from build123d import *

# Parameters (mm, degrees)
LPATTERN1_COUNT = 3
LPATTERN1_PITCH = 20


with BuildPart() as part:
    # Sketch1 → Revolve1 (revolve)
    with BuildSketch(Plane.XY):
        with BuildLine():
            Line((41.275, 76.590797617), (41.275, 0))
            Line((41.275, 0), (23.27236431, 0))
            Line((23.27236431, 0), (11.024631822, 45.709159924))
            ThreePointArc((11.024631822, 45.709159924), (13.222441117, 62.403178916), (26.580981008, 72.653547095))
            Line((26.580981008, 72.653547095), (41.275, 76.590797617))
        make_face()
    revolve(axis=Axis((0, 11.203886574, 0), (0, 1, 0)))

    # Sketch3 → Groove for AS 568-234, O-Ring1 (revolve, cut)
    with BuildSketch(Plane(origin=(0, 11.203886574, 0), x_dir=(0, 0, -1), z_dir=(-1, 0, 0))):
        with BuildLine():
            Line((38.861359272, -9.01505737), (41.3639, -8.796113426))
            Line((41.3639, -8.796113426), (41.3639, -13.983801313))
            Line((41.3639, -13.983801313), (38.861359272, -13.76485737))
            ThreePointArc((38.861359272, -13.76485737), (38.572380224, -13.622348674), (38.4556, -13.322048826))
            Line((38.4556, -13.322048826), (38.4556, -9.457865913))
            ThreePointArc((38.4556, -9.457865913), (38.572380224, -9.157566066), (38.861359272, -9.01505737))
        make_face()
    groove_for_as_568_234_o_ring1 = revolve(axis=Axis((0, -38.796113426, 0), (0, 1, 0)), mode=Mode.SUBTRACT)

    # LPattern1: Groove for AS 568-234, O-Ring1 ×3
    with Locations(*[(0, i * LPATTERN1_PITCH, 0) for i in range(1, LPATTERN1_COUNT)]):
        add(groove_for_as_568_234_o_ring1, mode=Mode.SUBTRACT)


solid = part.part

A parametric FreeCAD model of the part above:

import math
import FreeCAD as App
import Part
import Sketcher

V = App.Vector
Q = App.Units.Quantity

doc = App.newDocument("Part")
body = doc.addObject("PartDesign::Body", "Body")

# Sketch on XY plane
sketch1 = body.newObject("Sketcher::SketchObject", "Sketch")
sketch1.AttachmentSupport = (doc.getObject("XY_Plane"), [""])
sketch1.MapMode = "FlatFace"
sketch1.addGeometry([
    Part.LineSegment(V(41.275, 0, 0), V(41.275, 76.590798, 0)),  # 0
    Part.LineSegment(V(41.275, 76.590798, 0), V(26.580981, 72.653547, 0)),  # 1
    Part.ArcOfCircle(Part.Circle(V(32.275, 51.403179, 0), V(0, 0, 1), 22), math.radians(105), math.radians(195)),  # 2
    Part.LineSegment(V(11.024632, 45.70916, 0), V(23.272364, 0, 0)),  # 3
    Part.LineSegment(V(23.272364, 0, 0), V(41.275, 0, 0)),  # 4
], False)
sketch1.addConstraint([
    Sketcher.Constraint("Coincident", 0, 2, 1, 1),
    Sketcher.Constraint("Tangent", 1, 2, 2, 1),
    Sketcher.Constraint("Tangent", 2, 2, 3, 1),
    Sketcher.Constraint("Coincident", 3, 2, 4, 1),
    Sketcher.Constraint("Coincident", 4, 2, 0, 1),
    Sketcher.Constraint("Vertical", 0),
    Sketcher.Constraint("Horizontal", 4),
    Sketcher.Constraint("PointOnObject", 3, 2, -1),
    Sketcher.Constraint("Perpendicular", 1, 3),
    Sketcher.Constraint("Radius", 2, 22.0),
    Sketcher.Constraint("Angle", 1, Q("-165 deg")),
    Sketcher.Constraint("DistanceX", 2, 3, 0, 2, 9.0),
    Sketcher.Constraint("DistanceX", -1, 1, 2, 3, 32.275),
    Sketcher.Constraint("DistanceX", 4, 1, 4, 2, 18.002636),
])
revolution = body.newObject("PartDesign::Revolution", "Revolution")
revolution.Profile = sketch1
revolution.ReferenceAxis = (sketch1, ["V_Axis"])
revolution.Angle = 360

# Sketch on YZ plane
sketch2 = body.newObject("Sketcher::SketchObject", "Sketch001")
sketch2.AttachmentSupport = (doc.getObject("YZ_Plane"), [""])
sketch2.MapMode = "FlatFace"
sketch2.addGeometry([
    Part.LineSegment(V(20, -41.3639, 0), V(20.218944, -38.861359, 0)),  # 0
    Part.ArcOfCircle(Part.Circle(V(20.661752, -38.9001, 0), V(0, 0, 1), 0.4445), math.radians(90), math.radians(175)),  # 1
    Part.LineSegment(V(20.661752, -38.4556, 0), V(24.525935, -38.4556, 0)),  # 2
    Part.ArcOfCircle(Part.Circle(V(24.525935, -38.9001, 0), V(0, 0, 1), 0.4445), math.radians(5), math.radians(90)),  # 3
    Part.LineSegment(V(24.968744, -38.861359, 0), V(25.187688, -41.3639, 0)),  # 4
    Part.LineSegment(V(25.187688, -41.3639, 0), V(20, -41.3639, 0)),  # 5
], False)
sketch2.addConstraint([
    Sketcher.Constraint("Tangent", 0, 2, 1, 2),
    Sketcher.Constraint("Tangent", 1, 1, 2, 1),
    Sketcher.Constraint("Tangent", 2, 2, 3, 2),
    Sketcher.Constraint("Tangent", 3, 1, 4, 1),
    Sketcher.Constraint("Coincident", 4, 2, 5, 1),
    Sketcher.Constraint("Coincident", 5, 2, 0, 1),
    Sketcher.Constraint("Horizontal", 2),
    Sketcher.Constraint("Horizontal", 5),
    Sketcher.Constraint("Equal", 1, 3),
    Sketcher.Constraint("Horizontal", 0, 2, 3, 1),
    Sketcher.Constraint("Angle", 0, Q("85 deg")),
    Sketcher.Constraint("DistanceX", -1, 1, 5, 2, 20.0),
    Sketcher.Constraint("Radius", 1, 0.4445),
    Sketcher.Constraint("Distance", 0, 2.5121),
    Sketcher.Constraint("DistanceY", 1, 3, -1, 1, 38.9001),
    Sketcher.Constraint("DistanceX", 0, 2, 3, 1, 4.7498),
])
groove = body.newObject("PartDesign::Groove", "Groove")
groove.Profile = sketch2
groove.ReferenceAxis = (sketch2, ["H_Axis"])
groove.Angle = 360
doc.recompute()

linearpattern = body.newObject("PartDesign::LinearPattern", "LinearPattern")
linearpattern.Originals = [groove]
linearpattern.Direction = (doc.getObject("Y_Axis"), [""])
linearpattern.Mode = "offset"
linearpattern.Offset = 20
linearpattern.Occurrences = 3
body.Tip = linearpattern

doc.recompute()
